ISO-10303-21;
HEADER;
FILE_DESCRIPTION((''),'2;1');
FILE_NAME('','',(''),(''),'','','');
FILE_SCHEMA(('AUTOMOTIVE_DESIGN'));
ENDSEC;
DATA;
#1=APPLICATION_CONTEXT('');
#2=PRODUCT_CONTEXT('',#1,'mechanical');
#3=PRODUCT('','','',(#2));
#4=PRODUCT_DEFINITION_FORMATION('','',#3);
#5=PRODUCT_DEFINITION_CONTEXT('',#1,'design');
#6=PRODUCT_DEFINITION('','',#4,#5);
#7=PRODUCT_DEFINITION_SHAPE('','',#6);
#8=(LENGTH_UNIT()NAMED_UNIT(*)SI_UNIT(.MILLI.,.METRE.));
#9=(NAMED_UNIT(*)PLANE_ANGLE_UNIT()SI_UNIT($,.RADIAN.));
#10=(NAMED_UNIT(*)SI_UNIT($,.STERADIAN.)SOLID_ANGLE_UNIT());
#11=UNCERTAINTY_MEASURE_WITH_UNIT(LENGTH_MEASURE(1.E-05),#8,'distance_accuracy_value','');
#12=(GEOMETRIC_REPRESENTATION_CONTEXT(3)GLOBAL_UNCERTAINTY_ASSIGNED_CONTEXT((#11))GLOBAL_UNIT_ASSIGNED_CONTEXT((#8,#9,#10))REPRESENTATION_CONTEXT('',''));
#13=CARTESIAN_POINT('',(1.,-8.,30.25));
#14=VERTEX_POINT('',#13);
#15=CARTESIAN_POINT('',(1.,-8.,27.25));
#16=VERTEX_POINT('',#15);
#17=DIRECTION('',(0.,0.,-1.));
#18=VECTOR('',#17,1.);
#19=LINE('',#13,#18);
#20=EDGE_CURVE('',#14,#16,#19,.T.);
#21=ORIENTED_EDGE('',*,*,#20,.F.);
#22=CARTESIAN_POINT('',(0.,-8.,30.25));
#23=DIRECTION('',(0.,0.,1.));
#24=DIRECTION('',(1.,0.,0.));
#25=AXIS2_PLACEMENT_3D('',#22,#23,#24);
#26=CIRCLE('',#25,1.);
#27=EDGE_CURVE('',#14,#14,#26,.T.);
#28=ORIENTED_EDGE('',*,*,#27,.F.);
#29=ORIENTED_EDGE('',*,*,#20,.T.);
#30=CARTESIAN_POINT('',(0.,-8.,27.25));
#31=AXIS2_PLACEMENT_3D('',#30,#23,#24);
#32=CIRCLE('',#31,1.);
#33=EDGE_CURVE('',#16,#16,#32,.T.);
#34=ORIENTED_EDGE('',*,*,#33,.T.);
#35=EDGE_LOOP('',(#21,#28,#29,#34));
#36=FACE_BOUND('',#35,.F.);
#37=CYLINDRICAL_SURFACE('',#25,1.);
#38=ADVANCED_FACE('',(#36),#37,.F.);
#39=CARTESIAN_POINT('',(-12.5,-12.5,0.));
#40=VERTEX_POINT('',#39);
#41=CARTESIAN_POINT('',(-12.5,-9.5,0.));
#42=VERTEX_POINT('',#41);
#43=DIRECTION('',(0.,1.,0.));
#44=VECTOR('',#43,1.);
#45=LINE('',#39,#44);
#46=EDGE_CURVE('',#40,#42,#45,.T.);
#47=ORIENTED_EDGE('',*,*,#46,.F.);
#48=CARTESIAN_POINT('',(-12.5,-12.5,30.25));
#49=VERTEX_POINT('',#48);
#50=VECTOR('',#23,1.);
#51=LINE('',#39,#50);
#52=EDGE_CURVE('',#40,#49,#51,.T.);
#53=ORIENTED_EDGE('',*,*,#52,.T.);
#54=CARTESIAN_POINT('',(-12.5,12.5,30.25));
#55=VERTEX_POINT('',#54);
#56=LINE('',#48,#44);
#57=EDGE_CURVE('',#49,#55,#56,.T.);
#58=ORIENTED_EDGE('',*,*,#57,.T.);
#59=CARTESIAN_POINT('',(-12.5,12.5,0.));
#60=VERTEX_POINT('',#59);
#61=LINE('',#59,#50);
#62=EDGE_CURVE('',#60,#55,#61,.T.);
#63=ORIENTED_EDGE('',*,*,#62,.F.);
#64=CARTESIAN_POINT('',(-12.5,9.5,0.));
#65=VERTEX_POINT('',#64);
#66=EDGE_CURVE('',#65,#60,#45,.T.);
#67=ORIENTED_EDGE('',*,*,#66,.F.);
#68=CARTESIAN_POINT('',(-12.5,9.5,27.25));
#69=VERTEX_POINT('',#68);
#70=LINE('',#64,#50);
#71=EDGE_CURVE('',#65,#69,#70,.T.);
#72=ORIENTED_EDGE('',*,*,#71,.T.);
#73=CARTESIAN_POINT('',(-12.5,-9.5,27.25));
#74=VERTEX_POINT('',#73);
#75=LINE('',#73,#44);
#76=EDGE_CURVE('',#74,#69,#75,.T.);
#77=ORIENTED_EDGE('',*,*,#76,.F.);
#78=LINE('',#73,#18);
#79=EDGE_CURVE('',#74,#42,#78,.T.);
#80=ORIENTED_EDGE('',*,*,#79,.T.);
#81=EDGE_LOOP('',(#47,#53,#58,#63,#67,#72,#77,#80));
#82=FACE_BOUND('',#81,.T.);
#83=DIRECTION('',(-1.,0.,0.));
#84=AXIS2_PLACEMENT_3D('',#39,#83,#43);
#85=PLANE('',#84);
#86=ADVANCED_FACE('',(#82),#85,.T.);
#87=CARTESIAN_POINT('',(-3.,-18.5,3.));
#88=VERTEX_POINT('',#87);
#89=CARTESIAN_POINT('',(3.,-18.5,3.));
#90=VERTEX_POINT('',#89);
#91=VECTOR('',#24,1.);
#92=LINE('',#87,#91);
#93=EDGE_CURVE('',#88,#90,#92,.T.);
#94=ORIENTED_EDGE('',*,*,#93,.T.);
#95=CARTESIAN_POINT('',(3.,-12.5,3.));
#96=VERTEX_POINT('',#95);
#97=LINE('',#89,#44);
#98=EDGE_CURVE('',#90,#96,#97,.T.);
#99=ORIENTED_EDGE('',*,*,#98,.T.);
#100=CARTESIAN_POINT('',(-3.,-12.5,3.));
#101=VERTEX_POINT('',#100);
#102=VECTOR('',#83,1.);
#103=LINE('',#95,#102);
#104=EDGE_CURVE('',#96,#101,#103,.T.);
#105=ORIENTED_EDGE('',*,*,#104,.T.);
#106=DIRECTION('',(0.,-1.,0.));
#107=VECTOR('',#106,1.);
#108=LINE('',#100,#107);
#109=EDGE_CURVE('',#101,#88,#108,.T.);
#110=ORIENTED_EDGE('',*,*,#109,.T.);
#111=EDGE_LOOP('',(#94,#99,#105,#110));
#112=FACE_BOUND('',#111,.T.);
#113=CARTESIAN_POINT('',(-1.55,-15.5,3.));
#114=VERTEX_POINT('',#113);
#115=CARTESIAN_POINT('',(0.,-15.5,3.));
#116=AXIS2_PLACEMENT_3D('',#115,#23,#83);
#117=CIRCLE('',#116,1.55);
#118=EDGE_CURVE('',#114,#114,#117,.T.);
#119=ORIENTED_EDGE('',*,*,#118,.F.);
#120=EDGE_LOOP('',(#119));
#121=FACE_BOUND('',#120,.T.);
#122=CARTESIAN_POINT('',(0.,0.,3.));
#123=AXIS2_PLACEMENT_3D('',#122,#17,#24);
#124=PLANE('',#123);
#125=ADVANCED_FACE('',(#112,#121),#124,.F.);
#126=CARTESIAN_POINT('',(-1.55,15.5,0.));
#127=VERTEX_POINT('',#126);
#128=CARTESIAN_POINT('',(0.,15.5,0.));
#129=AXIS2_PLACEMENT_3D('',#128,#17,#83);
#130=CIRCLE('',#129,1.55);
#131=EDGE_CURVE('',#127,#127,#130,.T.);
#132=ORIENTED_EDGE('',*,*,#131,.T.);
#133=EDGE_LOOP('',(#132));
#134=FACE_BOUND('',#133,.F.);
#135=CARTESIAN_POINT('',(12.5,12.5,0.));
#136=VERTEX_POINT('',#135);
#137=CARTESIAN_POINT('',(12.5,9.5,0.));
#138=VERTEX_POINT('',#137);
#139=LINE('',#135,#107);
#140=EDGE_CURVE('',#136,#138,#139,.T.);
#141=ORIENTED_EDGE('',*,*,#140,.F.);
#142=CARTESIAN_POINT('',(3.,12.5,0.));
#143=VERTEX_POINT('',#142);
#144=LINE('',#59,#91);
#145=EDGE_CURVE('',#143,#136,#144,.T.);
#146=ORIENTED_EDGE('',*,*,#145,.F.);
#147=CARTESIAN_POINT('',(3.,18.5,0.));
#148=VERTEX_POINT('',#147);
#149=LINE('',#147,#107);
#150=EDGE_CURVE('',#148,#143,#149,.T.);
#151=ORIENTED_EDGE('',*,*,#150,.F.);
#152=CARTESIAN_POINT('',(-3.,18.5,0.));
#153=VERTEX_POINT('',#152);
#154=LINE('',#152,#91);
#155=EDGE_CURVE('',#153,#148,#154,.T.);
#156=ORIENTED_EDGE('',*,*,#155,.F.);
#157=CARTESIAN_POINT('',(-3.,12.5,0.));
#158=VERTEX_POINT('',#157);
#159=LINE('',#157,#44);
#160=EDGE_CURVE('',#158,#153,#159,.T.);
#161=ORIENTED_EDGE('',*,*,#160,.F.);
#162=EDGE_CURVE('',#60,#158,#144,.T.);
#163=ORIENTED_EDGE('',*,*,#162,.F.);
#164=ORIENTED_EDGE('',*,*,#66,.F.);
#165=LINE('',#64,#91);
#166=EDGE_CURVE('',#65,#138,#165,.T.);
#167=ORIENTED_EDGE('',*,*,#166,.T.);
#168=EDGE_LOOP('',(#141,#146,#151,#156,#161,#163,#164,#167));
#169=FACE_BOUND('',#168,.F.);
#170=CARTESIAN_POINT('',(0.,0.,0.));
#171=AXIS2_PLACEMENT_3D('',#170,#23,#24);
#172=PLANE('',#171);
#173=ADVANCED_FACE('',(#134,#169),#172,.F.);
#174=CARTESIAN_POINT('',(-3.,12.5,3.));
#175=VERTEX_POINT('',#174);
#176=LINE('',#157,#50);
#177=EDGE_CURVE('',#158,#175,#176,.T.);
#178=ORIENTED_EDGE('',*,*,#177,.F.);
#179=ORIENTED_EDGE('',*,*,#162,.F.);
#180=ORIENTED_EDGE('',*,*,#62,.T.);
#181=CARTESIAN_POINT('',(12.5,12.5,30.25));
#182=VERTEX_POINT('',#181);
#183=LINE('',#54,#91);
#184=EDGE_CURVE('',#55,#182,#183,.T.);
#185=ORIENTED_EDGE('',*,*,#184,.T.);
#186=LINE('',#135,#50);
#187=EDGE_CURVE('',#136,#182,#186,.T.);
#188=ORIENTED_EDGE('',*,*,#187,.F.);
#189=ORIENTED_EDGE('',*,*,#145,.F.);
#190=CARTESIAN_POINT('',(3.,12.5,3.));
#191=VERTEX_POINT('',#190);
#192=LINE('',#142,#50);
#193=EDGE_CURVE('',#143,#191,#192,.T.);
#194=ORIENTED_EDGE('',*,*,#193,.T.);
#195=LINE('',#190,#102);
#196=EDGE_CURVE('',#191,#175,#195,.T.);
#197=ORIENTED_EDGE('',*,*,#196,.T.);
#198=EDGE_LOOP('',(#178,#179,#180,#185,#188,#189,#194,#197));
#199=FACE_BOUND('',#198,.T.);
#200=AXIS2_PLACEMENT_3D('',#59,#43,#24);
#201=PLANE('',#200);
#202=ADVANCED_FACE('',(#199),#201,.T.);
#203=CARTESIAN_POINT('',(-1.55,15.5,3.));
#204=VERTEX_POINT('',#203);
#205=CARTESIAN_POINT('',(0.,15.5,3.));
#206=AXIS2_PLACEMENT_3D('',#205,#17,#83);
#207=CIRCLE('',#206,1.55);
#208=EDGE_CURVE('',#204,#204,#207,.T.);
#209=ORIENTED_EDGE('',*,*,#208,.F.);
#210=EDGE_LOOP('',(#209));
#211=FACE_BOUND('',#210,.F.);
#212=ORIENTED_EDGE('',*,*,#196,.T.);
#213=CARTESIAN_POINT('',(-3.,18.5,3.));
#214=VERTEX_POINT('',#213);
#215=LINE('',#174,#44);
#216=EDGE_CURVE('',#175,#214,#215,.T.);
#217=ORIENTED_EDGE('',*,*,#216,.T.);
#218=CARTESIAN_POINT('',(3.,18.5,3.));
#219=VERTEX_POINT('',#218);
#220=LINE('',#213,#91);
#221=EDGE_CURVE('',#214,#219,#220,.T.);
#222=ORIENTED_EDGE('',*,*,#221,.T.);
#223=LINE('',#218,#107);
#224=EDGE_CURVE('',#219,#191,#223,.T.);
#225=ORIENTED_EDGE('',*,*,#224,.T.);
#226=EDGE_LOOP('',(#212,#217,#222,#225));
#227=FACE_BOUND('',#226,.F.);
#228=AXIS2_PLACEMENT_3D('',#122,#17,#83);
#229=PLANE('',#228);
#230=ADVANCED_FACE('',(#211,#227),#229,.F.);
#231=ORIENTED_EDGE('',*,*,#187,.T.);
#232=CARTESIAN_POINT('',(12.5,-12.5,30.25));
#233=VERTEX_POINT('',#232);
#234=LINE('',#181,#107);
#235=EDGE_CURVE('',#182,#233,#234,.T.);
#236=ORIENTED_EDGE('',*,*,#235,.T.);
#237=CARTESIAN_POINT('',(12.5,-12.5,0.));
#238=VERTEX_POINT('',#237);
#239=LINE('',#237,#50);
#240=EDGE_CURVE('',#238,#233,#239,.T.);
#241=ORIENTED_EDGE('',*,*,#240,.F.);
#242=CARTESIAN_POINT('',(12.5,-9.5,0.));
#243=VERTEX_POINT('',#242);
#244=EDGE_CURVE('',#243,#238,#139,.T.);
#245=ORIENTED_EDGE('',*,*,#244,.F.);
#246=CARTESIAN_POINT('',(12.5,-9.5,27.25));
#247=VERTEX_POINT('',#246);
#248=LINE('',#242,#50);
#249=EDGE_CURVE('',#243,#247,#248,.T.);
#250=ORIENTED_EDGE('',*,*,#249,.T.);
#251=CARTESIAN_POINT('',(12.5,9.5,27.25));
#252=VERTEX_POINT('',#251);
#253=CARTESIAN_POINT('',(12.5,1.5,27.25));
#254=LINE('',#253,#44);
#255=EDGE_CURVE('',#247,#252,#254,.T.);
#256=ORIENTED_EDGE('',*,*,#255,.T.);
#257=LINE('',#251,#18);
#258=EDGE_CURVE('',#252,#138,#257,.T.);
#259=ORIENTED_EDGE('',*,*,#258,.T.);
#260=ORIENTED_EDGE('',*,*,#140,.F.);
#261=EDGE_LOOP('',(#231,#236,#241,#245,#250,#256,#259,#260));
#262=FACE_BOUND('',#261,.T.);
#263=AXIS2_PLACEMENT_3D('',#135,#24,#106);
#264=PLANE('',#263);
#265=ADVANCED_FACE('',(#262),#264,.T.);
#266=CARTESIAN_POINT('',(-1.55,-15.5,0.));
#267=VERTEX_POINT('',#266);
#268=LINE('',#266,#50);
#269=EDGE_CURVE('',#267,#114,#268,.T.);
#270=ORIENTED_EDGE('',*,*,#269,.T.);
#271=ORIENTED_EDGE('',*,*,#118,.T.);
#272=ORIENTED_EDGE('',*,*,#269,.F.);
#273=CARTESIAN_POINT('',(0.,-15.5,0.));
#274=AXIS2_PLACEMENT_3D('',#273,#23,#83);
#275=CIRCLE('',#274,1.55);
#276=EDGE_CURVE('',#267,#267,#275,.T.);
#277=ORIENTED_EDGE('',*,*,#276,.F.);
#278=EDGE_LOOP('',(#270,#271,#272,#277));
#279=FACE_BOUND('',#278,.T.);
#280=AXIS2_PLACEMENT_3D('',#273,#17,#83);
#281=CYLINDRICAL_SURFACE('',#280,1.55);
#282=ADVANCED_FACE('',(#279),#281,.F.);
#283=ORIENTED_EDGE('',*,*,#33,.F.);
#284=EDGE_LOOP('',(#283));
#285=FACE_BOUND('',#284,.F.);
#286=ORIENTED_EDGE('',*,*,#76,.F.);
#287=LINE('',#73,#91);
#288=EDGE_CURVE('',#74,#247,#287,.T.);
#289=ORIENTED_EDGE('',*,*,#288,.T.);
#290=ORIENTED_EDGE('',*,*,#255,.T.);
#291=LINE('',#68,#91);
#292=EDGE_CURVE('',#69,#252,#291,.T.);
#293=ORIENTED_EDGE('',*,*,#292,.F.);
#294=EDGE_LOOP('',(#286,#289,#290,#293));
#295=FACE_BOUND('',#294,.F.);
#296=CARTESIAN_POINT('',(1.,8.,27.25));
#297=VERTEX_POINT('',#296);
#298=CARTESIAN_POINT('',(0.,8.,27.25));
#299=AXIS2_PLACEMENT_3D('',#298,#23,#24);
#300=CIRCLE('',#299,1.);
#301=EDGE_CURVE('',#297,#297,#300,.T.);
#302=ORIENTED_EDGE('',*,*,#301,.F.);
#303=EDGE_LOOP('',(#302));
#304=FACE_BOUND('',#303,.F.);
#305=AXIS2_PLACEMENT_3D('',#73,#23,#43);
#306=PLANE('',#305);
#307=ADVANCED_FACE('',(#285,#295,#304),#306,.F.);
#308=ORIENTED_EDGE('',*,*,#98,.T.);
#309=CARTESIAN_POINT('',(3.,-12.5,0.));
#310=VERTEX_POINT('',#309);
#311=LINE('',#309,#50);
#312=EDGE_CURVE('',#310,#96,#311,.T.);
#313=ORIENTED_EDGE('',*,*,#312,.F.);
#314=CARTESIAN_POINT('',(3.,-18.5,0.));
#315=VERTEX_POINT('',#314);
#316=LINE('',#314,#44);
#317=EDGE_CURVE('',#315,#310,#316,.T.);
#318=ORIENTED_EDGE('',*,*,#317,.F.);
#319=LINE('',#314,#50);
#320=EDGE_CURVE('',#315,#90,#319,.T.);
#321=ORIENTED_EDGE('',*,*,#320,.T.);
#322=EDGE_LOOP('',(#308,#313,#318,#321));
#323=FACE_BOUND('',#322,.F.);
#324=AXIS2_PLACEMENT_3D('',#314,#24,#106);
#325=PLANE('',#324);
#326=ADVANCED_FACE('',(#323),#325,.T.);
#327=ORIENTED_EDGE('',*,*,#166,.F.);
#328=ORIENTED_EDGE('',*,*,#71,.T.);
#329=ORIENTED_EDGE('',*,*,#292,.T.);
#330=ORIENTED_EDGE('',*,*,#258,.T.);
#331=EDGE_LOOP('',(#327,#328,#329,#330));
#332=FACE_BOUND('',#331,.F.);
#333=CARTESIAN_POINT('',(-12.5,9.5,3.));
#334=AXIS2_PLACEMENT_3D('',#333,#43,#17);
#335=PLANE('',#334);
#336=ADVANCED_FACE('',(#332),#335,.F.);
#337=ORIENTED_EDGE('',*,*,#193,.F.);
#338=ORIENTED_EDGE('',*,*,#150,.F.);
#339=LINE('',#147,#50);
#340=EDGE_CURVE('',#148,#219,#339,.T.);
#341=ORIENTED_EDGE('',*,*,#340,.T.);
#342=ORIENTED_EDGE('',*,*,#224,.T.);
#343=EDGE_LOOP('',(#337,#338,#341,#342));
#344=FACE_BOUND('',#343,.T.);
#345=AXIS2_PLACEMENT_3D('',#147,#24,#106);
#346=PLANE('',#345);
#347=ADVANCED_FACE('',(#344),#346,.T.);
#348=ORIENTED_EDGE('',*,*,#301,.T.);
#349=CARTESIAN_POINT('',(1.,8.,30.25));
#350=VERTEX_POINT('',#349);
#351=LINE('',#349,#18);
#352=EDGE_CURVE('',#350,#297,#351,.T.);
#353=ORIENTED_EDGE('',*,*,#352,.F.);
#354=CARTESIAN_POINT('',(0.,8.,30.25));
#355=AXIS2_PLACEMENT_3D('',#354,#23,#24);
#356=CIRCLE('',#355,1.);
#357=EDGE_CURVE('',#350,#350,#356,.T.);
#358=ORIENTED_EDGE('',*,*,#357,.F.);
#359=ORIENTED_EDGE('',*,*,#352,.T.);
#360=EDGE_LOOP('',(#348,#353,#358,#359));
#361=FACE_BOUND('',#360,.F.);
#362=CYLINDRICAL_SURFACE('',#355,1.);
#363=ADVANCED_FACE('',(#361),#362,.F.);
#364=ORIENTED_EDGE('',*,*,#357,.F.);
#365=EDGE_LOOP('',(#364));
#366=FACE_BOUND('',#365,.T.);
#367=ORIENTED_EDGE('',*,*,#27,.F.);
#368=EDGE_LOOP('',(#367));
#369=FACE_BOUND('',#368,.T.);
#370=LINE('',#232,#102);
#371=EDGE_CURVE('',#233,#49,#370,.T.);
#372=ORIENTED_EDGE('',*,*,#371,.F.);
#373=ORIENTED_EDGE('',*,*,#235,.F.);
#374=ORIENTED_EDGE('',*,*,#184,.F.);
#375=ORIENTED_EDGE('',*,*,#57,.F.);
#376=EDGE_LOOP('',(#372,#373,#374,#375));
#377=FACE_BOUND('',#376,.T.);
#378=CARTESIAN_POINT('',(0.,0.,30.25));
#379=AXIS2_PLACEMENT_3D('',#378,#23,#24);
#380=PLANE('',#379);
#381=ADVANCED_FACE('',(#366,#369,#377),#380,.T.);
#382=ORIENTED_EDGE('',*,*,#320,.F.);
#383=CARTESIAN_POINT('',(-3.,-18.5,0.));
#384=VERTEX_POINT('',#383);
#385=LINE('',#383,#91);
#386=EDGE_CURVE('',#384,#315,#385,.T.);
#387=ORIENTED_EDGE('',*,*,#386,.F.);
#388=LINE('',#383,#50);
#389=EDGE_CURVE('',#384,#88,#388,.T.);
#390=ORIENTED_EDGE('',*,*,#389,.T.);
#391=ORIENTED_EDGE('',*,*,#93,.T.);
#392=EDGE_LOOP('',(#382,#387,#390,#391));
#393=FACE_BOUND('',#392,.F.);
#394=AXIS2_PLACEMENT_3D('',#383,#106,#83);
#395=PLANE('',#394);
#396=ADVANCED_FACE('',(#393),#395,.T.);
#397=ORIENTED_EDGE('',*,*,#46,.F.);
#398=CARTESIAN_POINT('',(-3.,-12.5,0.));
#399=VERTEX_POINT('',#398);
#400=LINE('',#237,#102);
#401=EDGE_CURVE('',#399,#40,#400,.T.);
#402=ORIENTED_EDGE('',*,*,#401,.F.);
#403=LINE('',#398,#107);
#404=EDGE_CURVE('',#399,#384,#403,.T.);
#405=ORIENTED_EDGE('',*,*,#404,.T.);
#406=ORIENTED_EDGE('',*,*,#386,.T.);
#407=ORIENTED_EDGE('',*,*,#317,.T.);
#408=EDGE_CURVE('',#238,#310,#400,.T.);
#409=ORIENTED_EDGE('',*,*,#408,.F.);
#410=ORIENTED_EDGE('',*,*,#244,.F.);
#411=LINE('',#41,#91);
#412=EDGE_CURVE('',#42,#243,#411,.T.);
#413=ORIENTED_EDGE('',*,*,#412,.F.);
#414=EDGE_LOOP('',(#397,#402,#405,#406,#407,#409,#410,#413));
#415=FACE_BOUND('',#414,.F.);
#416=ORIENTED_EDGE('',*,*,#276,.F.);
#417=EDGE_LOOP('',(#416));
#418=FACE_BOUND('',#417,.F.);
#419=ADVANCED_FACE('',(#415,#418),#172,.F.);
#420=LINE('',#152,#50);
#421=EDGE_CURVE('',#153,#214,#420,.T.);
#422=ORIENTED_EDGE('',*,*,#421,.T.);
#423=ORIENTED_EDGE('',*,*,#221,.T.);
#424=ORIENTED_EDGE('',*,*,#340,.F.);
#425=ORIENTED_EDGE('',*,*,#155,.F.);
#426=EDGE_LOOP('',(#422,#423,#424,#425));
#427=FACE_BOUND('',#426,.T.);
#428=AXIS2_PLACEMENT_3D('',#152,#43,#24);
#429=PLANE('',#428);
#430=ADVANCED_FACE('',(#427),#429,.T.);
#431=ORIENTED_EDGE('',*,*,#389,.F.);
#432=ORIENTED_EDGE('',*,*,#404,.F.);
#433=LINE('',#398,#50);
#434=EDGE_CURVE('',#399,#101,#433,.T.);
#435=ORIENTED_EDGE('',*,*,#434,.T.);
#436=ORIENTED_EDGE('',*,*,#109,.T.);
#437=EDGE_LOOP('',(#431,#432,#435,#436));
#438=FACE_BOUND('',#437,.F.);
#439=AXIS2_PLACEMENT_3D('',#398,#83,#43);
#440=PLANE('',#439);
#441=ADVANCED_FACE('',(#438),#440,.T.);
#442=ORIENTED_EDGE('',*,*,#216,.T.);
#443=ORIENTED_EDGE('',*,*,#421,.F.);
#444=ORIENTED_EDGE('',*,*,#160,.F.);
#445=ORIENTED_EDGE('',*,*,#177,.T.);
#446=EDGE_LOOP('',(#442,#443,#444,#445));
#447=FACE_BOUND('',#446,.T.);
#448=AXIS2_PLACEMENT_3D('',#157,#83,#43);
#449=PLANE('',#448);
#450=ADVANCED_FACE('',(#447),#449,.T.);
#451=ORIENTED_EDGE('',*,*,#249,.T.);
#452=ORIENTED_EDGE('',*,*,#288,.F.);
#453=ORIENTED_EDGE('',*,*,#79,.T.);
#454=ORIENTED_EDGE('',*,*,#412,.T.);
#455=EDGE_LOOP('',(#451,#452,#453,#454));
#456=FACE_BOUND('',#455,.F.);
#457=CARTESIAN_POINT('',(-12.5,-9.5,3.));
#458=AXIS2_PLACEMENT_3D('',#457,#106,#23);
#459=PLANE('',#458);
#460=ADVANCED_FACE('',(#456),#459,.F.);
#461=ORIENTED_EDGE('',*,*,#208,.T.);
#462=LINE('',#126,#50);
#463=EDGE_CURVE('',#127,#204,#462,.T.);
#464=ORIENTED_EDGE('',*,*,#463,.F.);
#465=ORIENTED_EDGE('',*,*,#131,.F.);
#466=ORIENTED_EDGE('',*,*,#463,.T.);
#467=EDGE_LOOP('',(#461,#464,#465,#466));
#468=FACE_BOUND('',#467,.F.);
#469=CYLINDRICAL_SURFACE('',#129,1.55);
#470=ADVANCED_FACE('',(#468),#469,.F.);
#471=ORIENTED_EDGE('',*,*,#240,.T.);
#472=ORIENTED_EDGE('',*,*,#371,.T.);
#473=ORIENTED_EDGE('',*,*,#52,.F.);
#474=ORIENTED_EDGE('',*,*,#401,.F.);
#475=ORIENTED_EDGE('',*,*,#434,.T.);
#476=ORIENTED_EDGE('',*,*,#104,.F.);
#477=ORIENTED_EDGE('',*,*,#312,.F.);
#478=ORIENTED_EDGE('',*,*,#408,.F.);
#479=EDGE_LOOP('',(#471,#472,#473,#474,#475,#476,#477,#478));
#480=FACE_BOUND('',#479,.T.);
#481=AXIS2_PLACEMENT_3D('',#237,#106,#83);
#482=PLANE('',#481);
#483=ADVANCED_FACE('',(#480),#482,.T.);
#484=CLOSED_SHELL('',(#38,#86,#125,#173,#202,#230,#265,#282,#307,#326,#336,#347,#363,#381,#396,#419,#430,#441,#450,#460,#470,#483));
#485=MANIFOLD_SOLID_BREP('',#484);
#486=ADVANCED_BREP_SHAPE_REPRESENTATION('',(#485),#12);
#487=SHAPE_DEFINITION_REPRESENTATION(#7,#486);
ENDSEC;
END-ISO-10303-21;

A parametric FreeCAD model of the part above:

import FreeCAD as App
import Part
import Sketcher
from FreeCAD import Vector
Q = App.Units.Quantity


def add_polygon(sketch, points):
    """Adds a closed chain of lines whose ends are joined by coincident constraints."""
    first, n = sketch.GeometryCount, len(points)
    for a, b in zip(points, points[1:] + points[:1]):
        sketch.addGeometry(Part.LineSegment(App.Vector(*a, 0), App.Vector(*b, 0)), False)
    for i in range(n):
        sketch.addConstraint(Sketcher.Constraint("Coincident", first + i, 2, first + (i + 1) % n, 1))

doc = App.newDocument("Part")
body = doc.addObject("PartDesign::Body", "Body")

sketch1 = doc.addObject("Sketcher::SketchObject", "Sketch")
body.addObject(sketch1)
sketch1.AttachmentSupport = (doc.XY_Plane, [""])
sketch1.MapMode = "FlatFace"
add_polygon(sketch1, [(12, 12), (-12, 12), (-12, -12), (12, -12)])
sketch1.addConstraint([
    Sketcher.Constraint("Horizontal", 0),
    Sketcher.Constraint("Vertical", 1),
    Sketcher.Constraint("Horizontal", 2),
    Sketcher.Constraint("Vertical", 3),
    Sketcher.Constraint("Symmetric", 0, 2, 2, 2, -1, 1),
    Sketcher.Constraint("Equal", 2, 1),
    Sketcher.Constraint("DistanceX", 0, 2, 0, 1, Q("25 mm")),
])
pad1 = doc.addObject("PartDesign::Pad", "Pad")
body.addObject(pad1)
pad1.Profile = sketch1
pad1.Length = 30.25

sketch2 = doc.addObject("Sketcher::SketchObject", "Sketch001")
body.addObject(sketch2)
sketch2.AttachmentSupport = (doc.XY_Plane, [""])
sketch2.MapMode = "FlatFace"
add_polygon(sketch2, [(-3, 12), (-3, 18), (3, 18), (3, 12)])
sketch2.addConstraint([
    Sketcher.Constraint("Vertical", 0),
    Sketcher.Constraint("Horizontal", 1),
    Sketcher.Constraint("Vertical", 2),
    Sketcher.Constraint("Horizontal", 3),
    Sketcher.Constraint("Equal", 3, 0),
    Sketcher.Constraint("DistanceX", 1, 1, 1, 2, Q("6 mm")),
    Sketcher.Constraint("DistanceX", 0, 2, -1, 1, Q("3 mm")),
    Sketcher.Constraint("DistanceY", -1, 1, 0, 2, Q("18.5 mm")),
])
pad2 = doc.addObject("PartDesign::Pad", "Pad001")
body.addObject(pad2)
pad2.Profile = sketch2
pad2.Length = 3
doc.recompute()

mirrored = doc.addObject("PartDesign::Mirrored", "Mirrored")
body.addObject(mirrored)
mirrored.Originals = [pad2]
mirrored.MirrorPlane = (doc.XZ_Plane, [""])
body.Tip = mirrored

sketch3 = doc.addObject("Sketcher::SketchObject", "Sketch002")
body.addObject(sketch3)
sketch3.AttachmentSupport = (doc.YZ_Plane, [""])
sketch3.MapMode = "FlatFace"
sketch3.AttachmentOffset = App.Placement(Vector(0, 0, -12.5), App.Rotation())
add_polygon(sketch3, [(10, 27), (10, 0), (-10, 0), (-10, 27)])
sketch3.addConstraint([
    Sketcher.Constraint("Vertical", 0),
    Sketcher.Constraint("Horizontal", 1),
    Sketcher.Constraint("Vertical", 2),
    Sketcher.Constraint("Horizontal", 3),
    Sketcher.Constraint("Symmetric", 0, 2, 1, 2, -1, 1),
    Sketcher.Constraint("DistanceX", 1, 2, 1, 1, Q("19 mm")),
    Sketcher.Constraint("DistanceY", 0, 2, 0, 1, Q("27.25 mm")),
])
pocket1 = doc.addObject("PartDesign::Pocket", "Pocket")
body.addObject(pocket1)
pocket1.Profile = sketch3
pocket1.Type = "UpToFirst"
pocket1.Reversed = True

sketch4 = doc.addObject("Sketcher::SketchObject", "Sketch003")
body.addObject(sketch4)
sketch4.AttachmentSupport = (doc.XY_Plane, [""])
sketch4.MapMode = "FlatFace"
sketch4.addGeometry(Part.Circle(Vector(0, 15.5, 0), Vector(0, 0, 1), 1.6), False)
sketch4.addConstraint([
    Sketcher.Constraint("PointOnObject", 0, 3, -2),
    Sketcher.Constraint("Diameter", 0, Q("3.1 mm")),
    Sketcher.Constraint("DistanceY", -1, 1, 0, 3, Q("15.5 mm")),
])
pocket2 = doc.addObject("PartDesign::Pocket", "Pocket001")
body.addObject(pocket2)
pocket2.Profile = sketch4
pocket2.Type = "UpToFirst"
pocket2.Reversed = True
doc.recompute()

mirrored2 = doc.addObject("PartDesign::Mirrored", "Mirrored001")
body.addObject(mirrored2)
mirrored2.Originals = [pocket2]
mirrored2.MirrorPlane = (doc.XZ_Plane, [""])
body.Tip = mirrored2

sketch5 = doc.addObject("Sketcher::SketchObject", "Sketch004")
body.addObject(sketch5)
sketch5.AttachmentSupport = (doc.XY_Plane, [""])
sketch5.MapMode = "FlatFace"
sketch5.AttachmentOffset = App.Placement(Vector(0, 0, 30.25), App.Rotation())
sketch5.addGeometry([
    Part.Circle(Vector(0, -8, 0), Vector(0, 0, 1), 1),
    Part.Circle(Vector(0, 8, 0), Vector(0, 0, 1), 1),
], False)
sketch5.addConstraint([
    Sketcher.Constraint("Equal", 0, 1),
    Sketcher.Constraint("Symmetric", 0, 3, 1, 3, -1, 1),
    Sketcher.Constraint("PointOnObject", 0, 3, -2),
    Sketcher.Constraint("Diameter", 0, Q("2 mm")),
    Sketcher.Constraint("DistanceY", 0, 3, -1, 1, Q("8 mm")),
])
pocket3 = doc.addObject("PartDesign::Pocket", "Pocket002")
body.addObject(pocket3)
pocket3.Profile = sketch5
pocket3.Type = "UpToFirst"

doc.recompute()
